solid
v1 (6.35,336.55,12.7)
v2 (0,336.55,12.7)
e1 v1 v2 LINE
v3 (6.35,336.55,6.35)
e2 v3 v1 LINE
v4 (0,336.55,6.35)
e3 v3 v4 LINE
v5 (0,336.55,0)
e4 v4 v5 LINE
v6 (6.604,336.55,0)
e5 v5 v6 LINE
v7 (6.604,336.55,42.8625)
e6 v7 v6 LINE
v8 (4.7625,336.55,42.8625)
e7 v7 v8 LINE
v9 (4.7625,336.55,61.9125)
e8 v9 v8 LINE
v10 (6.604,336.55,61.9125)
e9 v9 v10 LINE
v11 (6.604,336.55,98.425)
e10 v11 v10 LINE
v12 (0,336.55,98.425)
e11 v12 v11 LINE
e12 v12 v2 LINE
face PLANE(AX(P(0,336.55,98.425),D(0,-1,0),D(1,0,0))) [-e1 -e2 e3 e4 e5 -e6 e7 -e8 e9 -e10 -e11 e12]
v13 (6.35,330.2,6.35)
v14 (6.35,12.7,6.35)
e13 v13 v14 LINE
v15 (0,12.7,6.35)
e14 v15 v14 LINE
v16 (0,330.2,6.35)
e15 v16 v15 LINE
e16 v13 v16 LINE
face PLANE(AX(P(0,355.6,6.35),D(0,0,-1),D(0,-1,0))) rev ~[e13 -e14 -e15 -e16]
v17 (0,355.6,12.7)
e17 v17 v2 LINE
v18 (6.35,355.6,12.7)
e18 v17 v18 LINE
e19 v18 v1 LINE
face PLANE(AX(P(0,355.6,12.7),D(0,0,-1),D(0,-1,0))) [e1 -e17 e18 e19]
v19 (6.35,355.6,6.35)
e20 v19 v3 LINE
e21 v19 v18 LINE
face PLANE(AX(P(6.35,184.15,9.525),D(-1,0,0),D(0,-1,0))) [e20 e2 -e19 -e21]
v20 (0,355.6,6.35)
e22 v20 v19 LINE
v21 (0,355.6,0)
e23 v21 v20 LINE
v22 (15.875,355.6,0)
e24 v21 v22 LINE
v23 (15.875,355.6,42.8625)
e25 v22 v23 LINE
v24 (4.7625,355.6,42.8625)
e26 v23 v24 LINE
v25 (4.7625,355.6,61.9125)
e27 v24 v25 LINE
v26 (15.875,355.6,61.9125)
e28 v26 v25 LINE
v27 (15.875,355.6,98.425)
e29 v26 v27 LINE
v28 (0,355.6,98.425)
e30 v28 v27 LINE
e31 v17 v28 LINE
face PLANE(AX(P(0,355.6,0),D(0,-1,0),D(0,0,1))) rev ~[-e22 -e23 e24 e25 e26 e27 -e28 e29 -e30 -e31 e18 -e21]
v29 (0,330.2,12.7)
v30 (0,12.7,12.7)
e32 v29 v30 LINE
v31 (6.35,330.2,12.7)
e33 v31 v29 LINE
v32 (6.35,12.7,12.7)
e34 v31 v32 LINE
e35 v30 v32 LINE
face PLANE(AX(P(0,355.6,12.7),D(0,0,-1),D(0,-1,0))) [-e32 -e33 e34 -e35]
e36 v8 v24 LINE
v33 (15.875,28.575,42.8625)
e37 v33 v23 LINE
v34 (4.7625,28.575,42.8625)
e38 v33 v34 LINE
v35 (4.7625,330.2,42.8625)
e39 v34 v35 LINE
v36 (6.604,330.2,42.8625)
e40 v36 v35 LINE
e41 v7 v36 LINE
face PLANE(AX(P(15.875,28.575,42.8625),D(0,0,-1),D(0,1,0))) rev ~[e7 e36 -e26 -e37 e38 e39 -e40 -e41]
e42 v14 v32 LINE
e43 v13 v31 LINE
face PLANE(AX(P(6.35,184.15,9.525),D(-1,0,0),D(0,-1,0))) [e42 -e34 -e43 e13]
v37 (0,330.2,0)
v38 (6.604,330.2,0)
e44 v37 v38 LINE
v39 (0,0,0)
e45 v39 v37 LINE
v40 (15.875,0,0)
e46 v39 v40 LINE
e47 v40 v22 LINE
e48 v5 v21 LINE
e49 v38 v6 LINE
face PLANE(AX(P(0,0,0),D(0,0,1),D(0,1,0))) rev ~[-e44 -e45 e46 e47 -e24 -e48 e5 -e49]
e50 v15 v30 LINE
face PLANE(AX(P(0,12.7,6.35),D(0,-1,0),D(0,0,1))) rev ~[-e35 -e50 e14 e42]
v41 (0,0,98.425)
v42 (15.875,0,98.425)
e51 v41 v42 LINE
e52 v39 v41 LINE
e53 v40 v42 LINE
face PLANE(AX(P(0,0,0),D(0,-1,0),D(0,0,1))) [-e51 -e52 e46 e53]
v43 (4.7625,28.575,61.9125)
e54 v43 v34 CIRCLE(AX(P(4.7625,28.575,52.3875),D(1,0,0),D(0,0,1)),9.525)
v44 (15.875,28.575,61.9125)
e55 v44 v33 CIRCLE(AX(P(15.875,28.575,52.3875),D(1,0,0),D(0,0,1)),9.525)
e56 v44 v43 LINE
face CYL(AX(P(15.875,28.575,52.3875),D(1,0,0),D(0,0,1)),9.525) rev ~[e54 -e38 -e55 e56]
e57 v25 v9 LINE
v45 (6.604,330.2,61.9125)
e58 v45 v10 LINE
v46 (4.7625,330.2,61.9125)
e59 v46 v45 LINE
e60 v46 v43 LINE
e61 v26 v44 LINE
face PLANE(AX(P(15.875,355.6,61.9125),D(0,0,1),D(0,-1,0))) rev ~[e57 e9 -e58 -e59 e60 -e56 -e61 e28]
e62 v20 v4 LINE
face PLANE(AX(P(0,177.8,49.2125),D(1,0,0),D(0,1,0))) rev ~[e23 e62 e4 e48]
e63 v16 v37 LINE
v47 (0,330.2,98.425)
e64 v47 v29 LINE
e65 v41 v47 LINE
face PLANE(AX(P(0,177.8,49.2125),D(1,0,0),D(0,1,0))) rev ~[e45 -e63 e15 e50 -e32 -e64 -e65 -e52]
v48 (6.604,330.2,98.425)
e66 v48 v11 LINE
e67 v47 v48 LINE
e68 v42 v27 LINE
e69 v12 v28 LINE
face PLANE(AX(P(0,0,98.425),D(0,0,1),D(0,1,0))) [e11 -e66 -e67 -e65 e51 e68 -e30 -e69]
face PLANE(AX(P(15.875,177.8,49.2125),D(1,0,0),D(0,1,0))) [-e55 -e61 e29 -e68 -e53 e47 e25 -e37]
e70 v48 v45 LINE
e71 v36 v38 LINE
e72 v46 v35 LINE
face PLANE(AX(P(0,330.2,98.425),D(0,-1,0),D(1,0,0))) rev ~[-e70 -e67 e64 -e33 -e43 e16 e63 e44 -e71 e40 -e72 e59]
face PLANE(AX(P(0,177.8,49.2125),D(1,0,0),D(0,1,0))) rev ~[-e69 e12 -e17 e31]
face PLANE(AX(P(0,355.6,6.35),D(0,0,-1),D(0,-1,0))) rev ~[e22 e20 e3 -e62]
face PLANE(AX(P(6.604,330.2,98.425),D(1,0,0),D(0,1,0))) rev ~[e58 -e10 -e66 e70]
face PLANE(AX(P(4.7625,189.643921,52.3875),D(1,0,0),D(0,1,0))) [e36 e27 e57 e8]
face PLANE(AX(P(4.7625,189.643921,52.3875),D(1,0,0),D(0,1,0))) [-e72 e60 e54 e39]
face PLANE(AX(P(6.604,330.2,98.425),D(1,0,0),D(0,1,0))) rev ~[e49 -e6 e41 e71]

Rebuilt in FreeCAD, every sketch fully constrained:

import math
import FreeCAD as App
import Part
import Sketcher
Q = App.Units.Quantity


def add_polygon(sketch, points):
    """Adds a closed chain of lines whose ends are joined by coincident constraints."""
    first, n = sketch.GeometryCount, len(points)
    for a, b in zip(points, points[1:] + points[:1]):
        sketch.addGeometry(Part.LineSegment(App.Vector(*a, 0), App.Vector(*b, 0)), False)
    for i in range(n):
        sketch.addConstraint(Sketcher.Constraint("Coincident", first + i, 2, first + (i + 1) % n, 1))

doc = App.newDocument("Part")
params = doc.addObject("Spreadsheet::Sheet", "Params")
for row, (alias, value) in enumerate([
    ("sketch1_width", "14 in"),
    ("sketch1_height", "3.875 in"),
    ("pad1_length", "0.625 in"),
    ("sketch2_radius", "0.375 in"),
    ("sketch2_width", "12.875 in"),
    ("pocket1_length", "0.4375 in"),
    ("sketch3_width", "13.5 in"),
    ("sketch3_height", "0.25 in"),
    ("pocket2_length", "0.25 in"),
    ("sketch4_width", "0.26 in"),
    ("sketch4_height", "0.25 in"),
], start=1):
    params.set(f"A{row}", alias)
    params.set(f"B{row}", "=" + value)
    params.setAlias(f"B{row}", alias)

body = doc.addObject("PartDesign::Body", "Body")

# Sketch on YZ plane
sketch1 = body.newObject("Sketcher::SketchObject", "Sketch")
sketch1.AttachmentSupport = (doc.getObject("YZ_Plane"), [""])
sketch1.MapMode = "FlatFace"
add_polygon(sketch1, [(0, 98), (0, 0), (356, 0), (356, 98)])  # lines 0-3
sketch1.addConstraint([
    Sketcher.Constraint("Vertical", 0),
    Sketcher.Constraint("Horizontal", 1),
    Sketcher.Constraint("Vertical", 2),
    Sketcher.Constraint("Horizontal", 3),
    Sketcher.Constraint("Coincident", 0, 2, -1, 1),
    Sketcher.Constraint("DistanceX", 1, 1, 1, 2, Q("14 in")),
    Sketcher.Constraint("DistanceY", 0, 2, 0, 1, Q("3.875 in")),
])
sketch1.setExpression("Constraints[9]", "Params.sketch1_width")
sketch1.setExpression("Constraints[10]", "Params.sketch1_height")
pad1 = body.newObject("PartDesign::Pad", "Pad")
pad1.Profile = sketch1
pad1.setExpression("Length", "Params.pad1_length")

# Sketch on YZ plane
sketch2 = body.newObject("Sketcher::SketchObject", "Sketch001")
sketch2.AttachmentSupport = (doc.getObject("YZ_Plane"), [""])
sketch2.MapMode = "FlatFace"
sketch2.AttachmentOffset = App.Placement(App.Vector(0, 0, 0.625 * 25.4), App.Rotation())
sketch2.addGeometry([
    Part.ArcOfCircle(Part.Circle(App.Vector(29, 52, 0), App.Vector(0, 0, 1), 10), math.radians(90), math.radians(270)),
    Part.LineSegment(App.Vector(29, 43, 0), App.Vector(356, 43, 0)),
    Part.LineSegment(App.Vector(356, 43, 0), App.Vector(356, 62, 0)),
    Part.LineSegment(App.Vector(356, 62, 0), App.Vector(29, 62, 0)),
], False)
sketch2.addConstraint([
    Sketcher.Constraint("Tangent", 0, 2, 1, 1),
    Sketcher.Constraint("Coincident", 1, 2, 2, 1),
    Sketcher.Constraint("Coincident", 2, 2, 3, 1),
    Sketcher.Constraint("Tangent", 3, 2, 0, 1),
    Sketcher.Constraint("Horizontal", 1),
    Sketcher.Constraint("Vertical", 2),
    Sketcher.Constraint("Horizontal", 3),
    Sketcher.Constraint("DistanceX", -1, 1, 1, 2, Q("14 in")),
    Sketcher.Constraint("Radius", 0, Q("0.375 in")),
    Sketcher.Constraint("DistanceX", 1, 1, 1, 2, Q("12.875 in")),
    Sketcher.Constraint("DistanceY", -1, 1, 0, 3, Q("2.0625 in")),
])
sketch2.setExpression("Constraints[8]", "Params.sketch2_radius")
sketch2.setExpression("Constraints[9]", "Params.sketch2_width")
pocket1 = body.newObject("PartDesign::Pocket", "Pocket")
pocket1.Profile = sketch2
pocket1.setExpression("Length", "Params.pocket1_length")

# Sketch on YZ plane
sketch3 = body.newObject("Sketcher::SketchObject", "Sketch002")
sketch3.AttachmentSupport = (doc.getObject("YZ_Plane"), [""])
sketch3.MapMode = "FlatFace"
add_polygon(sketch3, [(356, 13), (356, 6), (13, 6), (13, 13)])  # lines 0-3
sketch3.addConstraint([
    Sketcher.Constraint("Vertical", 0),
    Sketcher.Constraint("Horizontal", 1),
    Sketcher.Constraint("Vertical", 2),
    Sketcher.Constraint("Horizontal", 3),
    Sketcher.Constraint("DistanceX", 1, 2, 1, 1, Q("13.5 in")),
    Sketcher.Constraint("DistanceX", -1, 1, 0, 2, Q("14 in")),
    Sketcher.Constraint("DistanceY", 0, 2, 0, 1, Q("0.25 in")),
    Sketcher.Constraint("DistanceY", -1, 1, 2, 2, Q("0.5 in")),
])
sketch3.setExpression("Constraints[8]", "Params.sketch3_width")
sketch3.setExpression("Constraints[10]", "Params.sketch3_height")
pocket2 = body.newObject("PartDesign::Pocket", "Pocket001")
pocket2.Profile = sketch3
pocket2.setExpression("Length", "Params.pocket2_length")
pocket2.Reversed = True

# Sketch on XY plane
sketch4 = body.newObject("Sketcher::SketchObject", "Sketch003")
sketch4.AttachmentSupport = (doc.getObject("XY_Plane"), [""])
sketch4.MapMode = "FlatFace"
sketch4.AttachmentOffset = App.Placement(App.Vector(0, 0, 3.875 * 25.4), App.Rotation())
add_polygon(sketch4, [(0, 337), (0, 330), (7, 330), (7, 337)])  # lines 0-3
sketch4.addConstraint([
    Sketcher.Constraint("Vertical", 0),
    Sketcher.Constraint("Horizontal", 1),
    Sketcher.Constraint("Vertical", 2),
    Sketcher.Constraint("Horizontal", 3),
    Sketcher.Constraint("PointOnObject", 0, 2, -2),
    Sketcher.Constraint("DistanceY", -1, 1, 0, 2, Q("13 in")),
    Sketcher.Constraint("DistanceX", 1, 1, 1, 2, Q("0.26 in")),
    Sketcher.Constraint("DistanceY", 0, 2, 0, 1, Q("0.25 in")),
])
sketch4.setExpression("Constraints[10]", "Params.sketch4_width")
sketch4.setExpression("Constraints[11]", "Params.sketch4_height")
pocket3 = body.newObject("PartDesign::Pocket", "Pocket002")
pocket3.Profile = sketch4
pocket3.Type = "ThroughAll"

doc.recompute()
